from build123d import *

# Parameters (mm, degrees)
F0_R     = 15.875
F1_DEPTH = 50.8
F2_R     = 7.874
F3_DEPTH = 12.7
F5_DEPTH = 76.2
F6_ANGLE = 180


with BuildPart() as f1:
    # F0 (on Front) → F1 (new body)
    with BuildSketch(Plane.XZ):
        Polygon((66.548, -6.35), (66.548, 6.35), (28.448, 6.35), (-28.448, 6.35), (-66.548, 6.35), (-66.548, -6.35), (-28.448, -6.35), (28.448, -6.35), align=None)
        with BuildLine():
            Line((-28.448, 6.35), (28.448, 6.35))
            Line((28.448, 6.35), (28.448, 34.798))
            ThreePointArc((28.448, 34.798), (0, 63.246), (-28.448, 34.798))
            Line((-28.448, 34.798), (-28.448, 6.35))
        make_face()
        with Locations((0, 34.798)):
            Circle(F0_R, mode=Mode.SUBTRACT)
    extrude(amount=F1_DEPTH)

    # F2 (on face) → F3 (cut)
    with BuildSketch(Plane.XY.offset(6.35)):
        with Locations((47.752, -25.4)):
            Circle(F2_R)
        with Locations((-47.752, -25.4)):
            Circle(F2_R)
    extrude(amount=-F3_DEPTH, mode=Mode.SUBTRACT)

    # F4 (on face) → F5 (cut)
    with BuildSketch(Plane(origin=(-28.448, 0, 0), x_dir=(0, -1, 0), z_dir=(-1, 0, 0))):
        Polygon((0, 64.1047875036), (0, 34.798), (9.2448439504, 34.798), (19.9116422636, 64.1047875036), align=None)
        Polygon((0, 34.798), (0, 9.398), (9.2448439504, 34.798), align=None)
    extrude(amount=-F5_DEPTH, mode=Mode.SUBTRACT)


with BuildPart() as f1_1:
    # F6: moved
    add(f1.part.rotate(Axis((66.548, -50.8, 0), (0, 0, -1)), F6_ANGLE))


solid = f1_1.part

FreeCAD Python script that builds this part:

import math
import FreeCAD as App
import Part
import Sketcher

V = App.Vector
Q = App.Units.Quantity

doc = App.newDocument("Part")
body = doc.addObject("PartDesign::Body", "Body")

# Sketch on XZ plane
sketch1 = body.newObject("Sketcher::SketchObject", "Sketch")
sketch1.AttachmentSupport = (doc.getObject("XZ_Plane"), [""])
sketch1.MapMode = "FlatFace"
sketch1.addGeometry([
    Part.LineSegment(V(66.548, -6.35, 0), V(66.548, 6.35, 0)),  # 0
    Part.LineSegment(V(66.548, 6.35, 0), V(28.448, 6.35, 0)),  # 1
    Part.LineSegment(V(28.448, 6.35, 0), V(28.448, 34.798, 0)),  # 2
    Part.ArcOfCircle(Part.Circle(V(0, 34.798, 0), V(0, 0, 1), 28.448), math.radians(0), math.radians(180)),  # 3
    Part.LineSegment(V(-28.448, 34.798, 0), V(-28.448, 6.35, 0)),  # 4
    Part.LineSegment(V(-28.448, 6.35, 0), V(-66.548, 6.35, 0)),  # 5
    Part.LineSegment(V(-66.548, 6.35, 0), V(-66.548, -6.35, 0)),  # 6
    Part.LineSegment(V(-66.548, -6.35, 0), V(66.548, -6.35, 0)),  # 7
    Part.Circle(V(0, 34.798, 0), V(0, 0, 1), 15.875),  # 8
], False)
sketch1.addConstraint([
    Sketcher.Constraint("Coincident", 0, 2, 1, 1),
    Sketcher.Constraint("Coincident", 1, 2, 2, 1),
    Sketcher.Constraint("Tangent", 2, 2, 3, 1),
    Sketcher.Constraint("Tangent", 3, 2, 4, 1),
    Sketcher.Constraint("Coincident", 4, 2, 5, 1),
    Sketcher.Constraint("Coincident", 5, 2, 6, 1),
    Sketcher.Constraint("Coincident", 6, 2, 7, 1),
    Sketcher.Constraint("Coincident", 7, 2, 0, 1),
    Sketcher.Constraint("Vertical", 0),
    Sketcher.Constraint("Horizontal", 1),
    Sketcher.Constraint("Vertical", 2),
    Sketcher.Constraint("Vertical", 4),
    Sketcher.Constraint("Horizontal", 5),
    Sketcher.Constraint("Vertical", 6),
    Sketcher.Constraint("Horizontal", 7),
    Sketcher.Constraint("Coincident", 8, 3, 3, 3),
    Sketcher.Constraint("Symmetric", 0, 2, 6, 2, -1, 1),
    Sketcher.Constraint("Symmetric", 1, 2, 4, 2, -2),
    Sketcher.Constraint("Diameter", 8, Q("1.25 in")),
    Sketcher.Constraint("Radius", 3, Q("1.12 in")),
    Sketcher.Constraint("DistanceX", 1, 2, 1, 1, Q("1.5 in")),
    Sketcher.Constraint("DistanceY", 0, 1, 0, 2, Q("0.5 in")),
    Sketcher.Constraint("DistanceY", 2, 1, 2, 2, Q("1.12 in")),
])
pad1 = body.newObject("PartDesign::Pad", "Pad")
pad1.Profile = sketch1
pad1.Length = Q("2 in")

# Sketch on XY plane
sketch2 = body.newObject("Sketcher::SketchObject", "Sketch001")
sketch2.AttachmentSupport = (doc.getObject("XY_Plane"), [""])
sketch2.MapMode = "FlatFace"
sketch2.AttachmentOffset = App.Placement(V(0, 0, 0.25 * 25.4), App.Rotation())
sketch2.addGeometry([
    Part.Circle(V(47.752, -25.4, 0), V(0, 0, 1), 7.874),
    Part.Circle(V(-47.752, -25.4, 0), V(0, 0, 1), 7.874),
], False)
sketch2.addConstraint([
    Sketcher.Constraint("Equal", 0, 1),
    Sketcher.Constraint("Symmetric", 0, 3, 1, 3, -2),
    Sketcher.Constraint("Diameter", 0, Q("0.62 in")),
    Sketcher.Constraint("DistanceY", 0, 3, -1, 1, Q("1 in")),
    Sketcher.Constraint("DistanceX", -1, 1, 0, 3, Q("1.88 in")),
])
pocket1 = body.newObject("PartDesign::Pocket", "Pocket")
pocket1.Profile = sketch2
pocket1.Length = Q("0.5 in")

# Sketch on YZ plane
sketch3 = body.newObject("Sketcher::SketchObject", "Sketch002")
sketch3.AttachmentSupport = (doc.getObject("YZ_Plane"), [""])
sketch3.MapMode = "FlatFace"
sketch3.AttachmentOffset = App.Placement(V(0, 0, -1.12 * 25.4), App.Rotation())
sketch3.addGeometry([
    Part.LineSegment(V(0, 64.104788, 0), V(0, 9.398, 0)),
    Part.LineSegment(V(0, 9.398, 0), V(-9.244844, 34.798, 0)),
    Part.LineSegment(V(-9.244844, 34.798, 0), V(-19.911642, 64.104788, 0)),
    Part.LineSegment(V(-19.911642, 64.104788, 0), V(0, 64.104788, 0)),
], False)
sketch3.addConstraint([
    Sketcher.Constraint("Coincident", 0, 2, 1, 1),
    Sketcher.Constraint("Coincident", 1, 2, 2, 1),
    Sketcher.Constraint("Coincident", 2, 2, 3, 1),
    Sketcher.Constraint("Coincident", 3, 2, 0, 1),
    Sketcher.Constraint("Vertical", 0),
    Sketcher.Constraint("Horizontal", 3),
    Sketcher.Constraint("PointOnObject", 0, 2, -2),
    Sketcher.Constraint("Parallel", 1, 2),
    Sketcher.Constraint("Angle", 1, Q("110 deg")),
    Sketcher.Constraint("DistanceY", 0, 2, 1, 2, Q("1 in")),
    Sketcher.Constraint("DistanceY", -1, 1, 0, 2, Q("0.37 in")),
    Sketcher.Constraint("DistanceX", 2, 2, 1, 2, 10.666798),
])
pocket2 = body.newObject("PartDesign::Pocket", "Pocket001")
pocket2.Profile = sketch3
pocket2.Length = Q("3 in")
pocket2.Reversed = True
body2 = doc.addObject("PartDesign::Body", "Body001")
doc.recompute()

body.Placement = App.Placement(V(133.096, -101.6, 0), App.Rotation(V(0, 0, -1), 180))
boolean = body2.newObject("PartDesign::Boolean", "Boolean")
boolean.Type = "Fuse"
boolean.addObjects([body])

doc.recompute()
